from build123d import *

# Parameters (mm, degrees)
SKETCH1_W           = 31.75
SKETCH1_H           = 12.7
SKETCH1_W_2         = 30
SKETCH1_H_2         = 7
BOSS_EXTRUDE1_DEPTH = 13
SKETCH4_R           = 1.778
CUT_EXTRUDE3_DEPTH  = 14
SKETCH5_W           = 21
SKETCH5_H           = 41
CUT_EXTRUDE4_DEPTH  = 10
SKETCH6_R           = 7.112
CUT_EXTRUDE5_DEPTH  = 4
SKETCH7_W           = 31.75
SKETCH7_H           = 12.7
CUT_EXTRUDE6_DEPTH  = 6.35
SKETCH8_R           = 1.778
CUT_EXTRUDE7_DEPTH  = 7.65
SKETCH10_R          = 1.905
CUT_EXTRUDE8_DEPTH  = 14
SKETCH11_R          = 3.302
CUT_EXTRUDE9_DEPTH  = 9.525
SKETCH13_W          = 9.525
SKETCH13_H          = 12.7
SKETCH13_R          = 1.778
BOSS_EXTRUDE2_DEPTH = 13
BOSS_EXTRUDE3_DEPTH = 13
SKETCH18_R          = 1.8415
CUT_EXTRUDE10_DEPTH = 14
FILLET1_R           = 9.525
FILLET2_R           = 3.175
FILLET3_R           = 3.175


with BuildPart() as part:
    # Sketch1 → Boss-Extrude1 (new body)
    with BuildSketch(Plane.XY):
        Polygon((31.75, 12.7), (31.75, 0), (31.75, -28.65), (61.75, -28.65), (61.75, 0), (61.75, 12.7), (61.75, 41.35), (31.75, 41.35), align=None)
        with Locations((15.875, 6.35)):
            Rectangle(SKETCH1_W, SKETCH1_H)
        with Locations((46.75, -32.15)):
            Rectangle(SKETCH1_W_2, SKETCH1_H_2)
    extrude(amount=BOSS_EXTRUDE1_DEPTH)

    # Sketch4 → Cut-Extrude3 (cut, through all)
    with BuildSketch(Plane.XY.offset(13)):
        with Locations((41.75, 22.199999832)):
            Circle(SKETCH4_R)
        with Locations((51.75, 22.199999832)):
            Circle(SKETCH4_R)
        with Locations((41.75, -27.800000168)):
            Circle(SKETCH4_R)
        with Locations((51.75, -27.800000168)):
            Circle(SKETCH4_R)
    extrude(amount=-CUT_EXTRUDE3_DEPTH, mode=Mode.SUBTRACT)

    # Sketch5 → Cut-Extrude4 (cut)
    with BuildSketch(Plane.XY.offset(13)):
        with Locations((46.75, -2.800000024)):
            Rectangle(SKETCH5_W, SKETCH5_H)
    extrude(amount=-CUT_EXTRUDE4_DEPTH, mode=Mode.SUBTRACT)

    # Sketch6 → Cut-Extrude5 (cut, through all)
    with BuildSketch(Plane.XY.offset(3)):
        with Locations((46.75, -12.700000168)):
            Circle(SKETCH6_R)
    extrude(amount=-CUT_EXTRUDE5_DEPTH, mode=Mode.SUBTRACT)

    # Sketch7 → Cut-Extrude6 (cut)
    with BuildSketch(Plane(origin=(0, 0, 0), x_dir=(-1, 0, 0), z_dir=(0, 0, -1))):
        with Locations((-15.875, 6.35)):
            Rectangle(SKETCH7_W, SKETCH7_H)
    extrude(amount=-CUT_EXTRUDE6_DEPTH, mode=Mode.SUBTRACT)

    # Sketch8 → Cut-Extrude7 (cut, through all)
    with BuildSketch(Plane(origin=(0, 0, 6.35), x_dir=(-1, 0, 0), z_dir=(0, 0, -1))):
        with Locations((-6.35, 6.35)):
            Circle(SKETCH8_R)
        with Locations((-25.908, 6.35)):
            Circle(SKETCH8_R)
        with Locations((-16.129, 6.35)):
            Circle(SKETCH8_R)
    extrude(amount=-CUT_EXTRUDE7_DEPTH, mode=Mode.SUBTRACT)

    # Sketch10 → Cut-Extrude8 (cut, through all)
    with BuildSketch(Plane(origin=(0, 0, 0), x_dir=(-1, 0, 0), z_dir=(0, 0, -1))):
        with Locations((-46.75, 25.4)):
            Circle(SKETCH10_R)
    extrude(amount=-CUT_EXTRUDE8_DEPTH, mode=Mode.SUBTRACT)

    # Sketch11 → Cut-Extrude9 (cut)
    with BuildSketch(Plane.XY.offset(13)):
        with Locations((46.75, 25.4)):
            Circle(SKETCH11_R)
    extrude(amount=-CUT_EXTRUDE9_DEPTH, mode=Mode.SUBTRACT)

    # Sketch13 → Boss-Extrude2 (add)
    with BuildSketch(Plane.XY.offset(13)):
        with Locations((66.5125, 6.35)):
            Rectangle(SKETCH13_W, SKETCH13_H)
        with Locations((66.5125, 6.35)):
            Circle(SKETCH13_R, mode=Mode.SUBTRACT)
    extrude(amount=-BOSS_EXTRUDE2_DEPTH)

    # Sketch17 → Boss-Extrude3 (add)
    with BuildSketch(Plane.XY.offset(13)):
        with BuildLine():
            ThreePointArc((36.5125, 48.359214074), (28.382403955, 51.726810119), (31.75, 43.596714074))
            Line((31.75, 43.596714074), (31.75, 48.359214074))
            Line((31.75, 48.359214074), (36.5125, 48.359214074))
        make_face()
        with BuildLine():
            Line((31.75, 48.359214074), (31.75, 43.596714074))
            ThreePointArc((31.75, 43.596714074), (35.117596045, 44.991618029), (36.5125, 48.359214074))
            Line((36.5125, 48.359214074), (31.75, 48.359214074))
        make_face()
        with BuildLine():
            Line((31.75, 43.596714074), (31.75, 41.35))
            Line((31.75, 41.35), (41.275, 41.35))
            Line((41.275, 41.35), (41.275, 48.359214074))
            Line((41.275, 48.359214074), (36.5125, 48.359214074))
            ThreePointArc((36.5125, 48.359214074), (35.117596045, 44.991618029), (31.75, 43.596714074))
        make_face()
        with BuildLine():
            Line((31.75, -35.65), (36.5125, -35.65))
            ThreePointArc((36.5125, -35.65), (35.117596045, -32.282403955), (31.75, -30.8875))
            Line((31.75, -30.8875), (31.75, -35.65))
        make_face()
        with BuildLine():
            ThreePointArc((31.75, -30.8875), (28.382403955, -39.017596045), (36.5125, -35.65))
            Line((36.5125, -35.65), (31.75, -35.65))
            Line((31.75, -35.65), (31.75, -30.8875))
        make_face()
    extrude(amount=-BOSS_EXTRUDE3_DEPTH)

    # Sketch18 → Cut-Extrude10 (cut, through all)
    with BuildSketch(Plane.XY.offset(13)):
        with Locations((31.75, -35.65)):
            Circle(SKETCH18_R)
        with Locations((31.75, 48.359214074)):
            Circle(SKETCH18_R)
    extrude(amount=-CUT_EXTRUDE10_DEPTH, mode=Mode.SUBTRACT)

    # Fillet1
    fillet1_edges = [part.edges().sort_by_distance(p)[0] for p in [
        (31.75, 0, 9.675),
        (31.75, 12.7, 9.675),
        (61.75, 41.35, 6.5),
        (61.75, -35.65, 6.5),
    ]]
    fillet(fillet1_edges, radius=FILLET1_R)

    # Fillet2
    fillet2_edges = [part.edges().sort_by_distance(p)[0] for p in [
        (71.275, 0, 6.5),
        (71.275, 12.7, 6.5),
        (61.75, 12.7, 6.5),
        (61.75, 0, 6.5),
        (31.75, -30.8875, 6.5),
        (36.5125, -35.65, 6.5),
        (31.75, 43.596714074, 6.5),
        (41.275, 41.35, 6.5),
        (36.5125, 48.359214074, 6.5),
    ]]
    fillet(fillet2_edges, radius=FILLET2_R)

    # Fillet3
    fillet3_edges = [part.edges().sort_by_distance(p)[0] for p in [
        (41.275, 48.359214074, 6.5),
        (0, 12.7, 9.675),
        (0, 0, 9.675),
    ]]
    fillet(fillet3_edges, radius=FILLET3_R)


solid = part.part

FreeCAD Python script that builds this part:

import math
import FreeCAD as App
import Part
import Sketcher
from FreeCAD import Vector
Q = App.Units.Quantity


def edges_at(feature, points):
    """Names of the edges that pass closest to the given points."""
    edges = feature.Shape.Edges
    near = lambda p: min(range(len(edges)), key=lambda i: edges[i].distToShape(Part.Vertex(*p))[0])
    return sorted({f"Edge{near(p) + 1}" for p in points})

doc = App.newDocument("Part")
body = doc.addObject("PartDesign::Body", "Body")

# Sketch on XY plane
sketch1 = body.newObject("Sketcher::SketchObject", "Sketch")
sketch1.AttachmentSupport = (doc.getObject("XY_Plane"), [""])
sketch1.MapMode = "FlatFace"
sketch1.addGeometry(Part.LineSegment(Vector(62, 41, 0), Vector(32, 41, 0)), False)
sketch1.addGeometry(Part.LineSegment(Vector(32, 41, 0), Vector(32, 13, 0)), False)
sketch1.addGeometry(Part.LineSegment(Vector(32, 13, 0), Vector(0, 13, 0)), False)
sketch1.addGeometry(Part.LineSegment(Vector(0, 13, 0), Vector(0, 0, 0)), False)
sketch1.addGeometry(Part.LineSegment(Vector(0, 0, 0), Vector(32, 0, 0)), False)
sketch1.addGeometry(Part.LineSegment(Vector(32, 0, 0), Vector(32, -36, 0)), False)
sketch1.addGeometry(Part.LineSegment(Vector(32, -36, 0), Vector(62, -36, 0)), False)
sketch1.addGeometry(Part.LineSegment(Vector(62, -36, 0), Vector(62, 41, 0)), False)
sketch1.addConstraint(Sketcher.Constraint("Coincident", 0, 2, 1, 1))
sketch1.addConstraint(Sketcher.Constraint("Coincident", 1, 2, 2, 1))
sketch1.addConstraint(Sketcher.Constraint("Coincident", 2, 2, 3, 1))
sketch1.addConstraint(Sketcher.Constraint("Coincident", 3, 2, 4, 1))
sketch1.addConstraint(Sketcher.Constraint("Coincident", 4, 2, 5, 1))
sketch1.addConstraint(Sketcher.Constraint("Coincident", 5, 2, 6, 1))
sketch1.addConstraint(Sketcher.Constraint("Coincident", 6, 2, 7, 1))
sketch1.addConstraint(Sketcher.Constraint("Coincident", 7, 2, 0, 1))
sketch1.addConstraint(Sketcher.Constraint("Horizontal", 0))
sketch1.addConstraint(Sketcher.Constraint("Vertical", 1))
sketch1.addConstraint(Sketcher.Constraint("Horizontal", 2))
sketch1.addConstraint(Sketcher.Constraint("Vertical", 3))
sketch1.addConstraint(Sketcher.Constraint("Horizontal", 4))
sketch1.addConstraint(Sketcher.Constraint("Vertical", 5))
sketch1.addConstraint(Sketcher.Constraint("Horizontal", 6))
sketch1.addConstraint(Sketcher.Constraint("Vertical", 7))
sketch1.addConstraint(Sketcher.Constraint("Coincident", 3, 2, -1, 1))
sketch1.addConstraint(Sketcher.Constraint("Vertical", 1, 2, 4, 2))
sketch1.addConstraint(Sketcher.Constraint("DistanceY", 3, 2, 3, 1, Q("0.5 in")))
sketch1.addConstraint(Sketcher.Constraint("DistanceX", 2, 2, 2, 1, Q("1.25 in")))
sketch1.addConstraint(Sketcher.Constraint("DistanceX", 0, 2, 0, 1, 30.0))
sketch1.addConstraint(Sketcher.Constraint("DistanceY", 1, 2, 1, 1, 28.65))
sketch1.addConstraint(Sketcher.Constraint("DistanceY", 5, 2, 5, 1, 35.65))
pad1 = body.newObject("PartDesign::Pad", "Pad")
pad1.Profile = sketch1
pad1.Length = 13

# Sketch on XY plane
sketch2 = body.newObject("Sketcher::SketchObject", "Sketch001")
sketch2.AttachmentSupport = (doc.getObject("XY_Plane"), [""])
sketch2.MapMode = "FlatFace"
sketch2.AttachmentOffset = App.Placement(Vector(0, 0, 13), App.Rotation())
sketch2.addGeometry(Part.Circle(Vector(41.8, 22.2, 0), Vector(0, 0, 1), 1.8), False)
sketch2.addGeometry(Part.Circle(Vector(51.8, 22.2, 0), Vector(0, 0, 1), 1.8), False)
sketch2.addGeometry(Part.Circle(Vector(41.8, -27.8, 0), Vector(0, 0, 1), 1.8), False)
sketch2.addGeometry(Part.Circle(Vector(51.8, -27.8, 0), Vector(0, 0, 1), 1.8), False)
sketch2.addConstraint(Sketcher.Constraint("Equal", 0, 1))
sketch2.addConstraint(Sketcher.Constraint("Equal", 1, 2))
sketch2.addConstraint(Sketcher.Constraint("Equal", 2, 3))
sketch2.addConstraint(Sketcher.Constraint("Horizontal", 0, 3, 1, 3))
sketch2.addConstraint(Sketcher.Constraint("Horizontal", 2, 3, 3, 3))
sketch2.addConstraint(Sketcher.Constraint("Vertical", 0, 3, 2, 3))
sketch2.addConstraint(Sketcher.Constraint("Vertical", 1, 3, 3, 3))
sketch2.addConstraint(Sketcher.Constraint("Diameter", 0, Q("0.14 in")))
sketch2.addConstraint(Sketcher.Constraint("DistanceX", -1, 1, 0, 3, 41.75))
sketch2.addConstraint(Sketcher.Constraint("DistanceY", -1, 1, 0, 3, 22.2))
sketch2.addConstraint(Sketcher.Constraint("DistanceX", -1, 1, 1, 3, 51.75))
sketch2.addConstraint(Sketcher.Constraint("DistanceY", 2, 3, -1, 1, 27.8))
pocket1 = body.newObject("PartDesign::Pocket", "Pocket")
pocket1.Profile = sketch2
pocket1.Type = "ThroughAll"

# Sketch on XY plane
sketch3 = body.newObject("Sketcher::SketchObject", "Sketch002")
sketch3.AttachmentSupport = (doc.getObject("XY_Plane"), [""])
sketch3.MapMode = "FlatFace"
sketch3.AttachmentOffset = App.Placement(Vector(0, 0, 13), App.Rotation())
sketch3.addGeometry(Part.LineSegment(Vector(36, 18, 0), Vector(36, -23, 0)), False)
sketch3.addGeometry(Part.LineSegment(Vector(36, -23, 0), Vector(57, -23, 0)), False)
sketch3.addGeometry(Part.LineSegment(Vector(57, -23, 0), Vector(57, 18, 0)), False)
sketch3.addGeometry(Part.LineSegment(Vector(57, 18, 0), Vector(36, 18, 0)), False)
sketch3.addConstraint(Sketcher.Constraint("Coincident", 0, 2, 1, 1))
sketch3.addConstraint(Sketcher.Constraint("Coincident", 1, 2, 2, 1))
sketch3.addConstraint(Sketcher.Constraint("Coincident", 2, 2, 3, 1))
sketch3.addConstraint(Sketcher.Constraint("Coincident", 3, 2, 0, 1))
sketch3.addConstraint(Sketcher.Constraint("Vertical", 0))
sketch3.addConstraint(Sketcher.Constraint("Horizontal", 1))
sketch3.addConstraint(Sketcher.Constraint("Vertical", 2))
sketch3.addConstraint(Sketcher.Constraint("Horizontal", 3))
sketch3.addConstraint(Sketcher.Constraint("DistanceX", 1, 1, 1, 2, 21.0))
sketch3.addConstraint(Sketcher.Constraint("DistanceY", 0, 2, 0, 1, 41.0))
sketch3.addConstraint(Sketcher.Constraint("DistanceX", -1, 1, 0, 2, 36.25))
sketch3.addConstraint(Sketcher.Constraint("DistanceY", 0, 2, -1, 1, 23.3))
pocket2 = body.newObject("PartDesign::Pocket", "Pocket001")
pocket2.Profile = sketch3
pocket2.Length = 10

# Sketch on XY plane
sketch4 = body.newObject("Sketcher::SketchObject", "Sketch003")
sketch4.AttachmentSupport = (doc.getObject("XY_Plane"), [""])
sketch4.MapMode = "FlatFace"
sketch4.AttachmentOffset = App.Placement(Vector(0, 0, 3), App.Rotation())
sketch4.addGeometry(Part.Circle(Vector(47, -13, 0), Vector(0, 0, 1), 7), False)
sketch4.addConstraint(Sketcher.Constraint("Diameter", 0, Q("0.56 in")))
sketch4.addConstraint(Sketcher.Constraint("DistanceY", 0, 3, -1, 1, Q("0.5 in")))
sketch4.addConstraint(Sketcher.Constraint("DistanceX", -1, 1, 0, 3, 46.75))
pocket3 = body.newObject("PartDesign::Pocket", "Pocket002")
pocket3.Profile = sketch4
pocket3.Type = "ThroughAll"

# Sketch on XY plane
sketch5 = body.newObject("Sketcher::SketchObject", "Sketch004")
sketch5.AttachmentSupport = (doc.getObject("XY_Plane"), [""])
sketch5.MapMode = "FlatFace"
sketch5.addGeometry(Part.LineSegment(Vector(32, 13, 0), Vector(32, 0, 0)), False)
sketch5.addGeometry(Part.LineSegment(Vector(32, 0, 0), Vector(0, 0, 0)), False)
sketch5.addGeometry(Part.LineSegment(Vector(0, 0, 0), Vector(0, 13, 0)), False)
sketch5.addGeometry(Part.LineSegment(Vector(0, 13, 0), Vector(32, 13, 0)), False)
sketch5.addConstraint(Sketcher.Constraint("Coincident", 0, 2, 1, 1))
sketch5.addConstraint(Sketcher.Constraint("Coincident", 1, 2, 2, 1))
sketch5.addConstraint(Sketcher.Constraint("Coincident", 2, 2, 3, 1))
sketch5.addConstraint(Sketcher.Constraint("Coincident", 3, 2, 0, 1))
sketch5.addConstraint(Sketcher.Constraint("Vertical", 0))
sketch5.addConstraint(Sketcher.Constraint("Horizontal", 1))
sketch5.addConstraint(Sketcher.Constraint("Vertical", 2))
sketch5.addConstraint(Sketcher.Constraint("Horizontal", 3))
sketch5.addConstraint(Sketcher.Constraint("Coincident", 1, 2, -1, 1))
sketch5.addConstraint(Sketcher.Constraint("DistanceY", 0, 2, 0, 1, Q("0.5 in")))
sketch5.addConstraint(Sketcher.Constraint("DistanceX", 1, 2, 1, 1, Q("1.25 in")))
pocket4 = body.newObject("PartDesign::Pocket", "Pocket003")
pocket4.Profile = sketch5
pocket4.Length = Q("0.25 in")
pocket4.Reversed = True

# Sketch on XY plane
sketch6 = body.newObject("Sketcher::SketchObject", "Sketch005")
sketch6.AttachmentSupport = (doc.getObject("XY_Plane"), [""])
sketch6.MapMode = "FlatFace"
sketch6.AttachmentOffset = App.Placement(Vector(0, 0, 0.25 * 25.4), App.Rotation())
sketch6.addGeometry(Part.Circle(Vector(6.3, 6.3, 0), Vector(0, 0, 1), 1.8), False)
sketch6.addGeometry(Part.Circle(Vector(25.9, 6.3, 0), Vector(0, 0, 1), 1.8), False)
sketch6.addGeometry(Part.Circle(Vector(16.1, 6.3, 0), Vector(0, 0, 1), 1.8), False)
sketch6.addConstraint(Sketcher.Constraint("Equal", 0, 1))
sketch6.addConstraint(Sketcher.Constraint("Equal", 1, 2))
sketch6.addConstraint(Sketcher.Constraint("Horizontal", 0, 3, 1, 3))
sketch6.addConstraint(Sketcher.Constraint("Horizontal", 1, 3, 2, 3))
sketch6.addConstraint(Sketcher.Constraint("Diameter", 0, Q("0.14 in")))
sketch6.addConstraint(Sketcher.Constraint("DistanceX", -1, 1, 0, 3, Q("0.25 in")))
sketch6.addConstraint(Sketcher.Constraint("DistanceY", -1, 1, 0, 3, Q("0.25 in")))
sketch6.addConstraint(Sketcher.Constraint("DistanceX", -1, 1, 1, 3, Q("1.02 in")))
sketch6.addConstraint(Sketcher.Constraint("DistanceX", -1, 1, 2, 3, Q("0.635 in")))
pocket5 = body.newObject("PartDesign::Pocket", "Pocket004")
pocket5.Profile = sketch6
pocket5.Type = "ThroughAll"
pocket5.Reversed = True

# Sketch on XY plane
sketch7 = body.newObject("Sketcher::SketchObject", "Sketch006")
sketch7.AttachmentSupport = (doc.getObject("XY_Plane"), [""])
sketch7.MapMode = "FlatFace"
sketch7.addGeometry(Part.Circle(Vector(46.8, 25.4, 0), Vector(0, 0, 1), 1.9), False)
sketch7.addConstraint(Sketcher.Constraint("Diameter", 0, Q("0.15 in")))
sketch7.addConstraint(Sketcher.Constraint("DistanceY", -1, 1, 0, 3, Q("1 in")))
sketch7.addConstraint(Sketcher.Constraint("DistanceX", -1, 1, 0, 3, 46.75))
pocket6 = body.newObject("PartDesign::Pocket", "Pocket005")
pocket6.Profile = sketch7
pocket6.Type = "ThroughAll"
pocket6.Reversed = True

# Sketch on XY plane
sketch8 = body.newObject("Sketcher::SketchObject", "Sketch007")
sketch8.AttachmentSupport = (doc.getObject("XY_Plane"), [""])
sketch8.MapMode = "FlatFace"
sketch8.AttachmentOffset = App.Placement(Vector(0, 0, 13), App.Rotation())
sketch8.addGeometry(Part.Circle(Vector(46.8, 25.4, 0), Vector(0, 0, 1), 3.3), False)
sketch8.addConstraint(Sketcher.Constraint("Diameter", 0, Q("0.26 in")))
sketch8.addConstraint(Sketcher.Constraint("DistanceY", -1, 1, 0, 3, Q("1 in")))
sketch8.addConstraint(Sketcher.Constraint("DistanceX", -1, 1, 0, 3, 46.75))
pocket7 = body.newObject("PartDesign::Pocket", "Pocket006")
pocket7.Profile = sketch8
pocket7.Length = Q("0.375 in")

# Sketch on XY plane
sketch9 = body.newObject("Sketcher::SketchObject", "Sketch008")
sketch9.AttachmentSupport = (doc.getObject("XY_Plane"), [""])
sketch9.MapMode = "FlatFace"
sketch9.AttachmentOffset = App.Placement(Vector(0, 0, 13), App.Rotation())
sketch9.addGeometry(Part.LineSegment(Vector(61.8, 12.7, 0), Vector(61.8, 0, 0)), False)
sketch9.addGeometry(Part.LineSegment(Vector(61.8, 0, 0), Vector(71.3, 0, 0)), False)
sketch9.addGeometry(Part.LineSegment(Vector(71.3, 0, 0), Vector(71.3, 12.7, 0)), False)
sketch9.addGeometry(Part.LineSegment(Vector(71.3, 12.7, 0), Vector(61.8, 12.7, 0)), False)
sketch9.addGeometry(Part.Circle(Vector(66.5, 6.3, 0), Vector(0, 0, 1), 1.8), False)
sketch9.addConstraint(Sketcher.Constraint("Coincident", 0, 2, 1, 1))
sketch9.addConstraint(Sketcher.Constraint("Coincident", 1, 2, 2, 1))
sketch9.addConstraint(Sketcher.Constraint("Coincident", 2, 2, 3, 1))
sketch9.addConstraint(Sketcher.Constraint("Coincident", 3, 2, 0, 1))
sketch9.addConstraint(Sketcher.Constraint("Vertical", 0))
sketch9.addConstraint(Sketcher.Constraint("Horizontal", 1))
sketch9.addConstraint(Sketcher.Constraint("Vertical", 2))
sketch9.addConstraint(Sketcher.Constraint("Horizontal", 3))
sketch9.addConstraint(Sketcher.Constraint("PointOnObject", 0, 2, -1))
sketch9.addConstraint(Sketcher.Constraint("Diameter", 4, Q("0.14 in")))
sketch9.addConstraint(Sketcher.Constraint("DistanceY", 0, 2, 0, 1, Q("0.5 in")))
sketch9.addConstraint(Sketcher.Constraint("DistanceX", 1, 1, 1, 2, Q("0.375 in")))
sketch9.addConstraint(Sketcher.Constraint("DistanceY", -1, 1, 4, 3, Q("0.25 in")))
sketch9.addConstraint(Sketcher.Constraint("DistanceX", 0, 2, 4, 3, Q("0.1875 in")))
sketch9.addConstraint(Sketcher.Constraint("DistanceX", -1, 1, 4, 3, 66.5125))
pad2 = body.newObject("PartDesign::Pad", "Pad001")
pad2.Profile = sketch9
pad2.Length = 13
pad2.Reversed = True

# Sketch on XY plane
sketch10 = body.newObject("Sketcher::SketchObject", "Sketch009")
sketch10.AttachmentSupport = (doc.getObject("XY_Plane"), [""])
sketch10.MapMode = "FlatFace"
sketch10.AttachmentOffset = App.Placement(Vector(0, 0, 13), App.Rotation())
sketch10.addGeometry(Part.ArcOfCircle(Part.Circle(Vector(31.8, 48.4, 0), Vector(0, 0, 1), 4.8), math.radians(0), math.radians(270)), False)
sketch10.addGeometry(Part.LineSegment(Vector(31.8, 43.6, 0), Vector(31.8, 41.4, 0)), False)
sketch10.addGeometry(Part.LineSegment(Vector(31.8, 41.4, 0), Vector(41.3, 41.4, 0)), False)
sketch10.addGeometry(Part.LineSegment(Vector(41.3, 41.4, 0), Vector(41.3, 48.4, 0)), False)
sketch10.addGeometry(Part.LineSegment(Vector(41.3, 48.4, 0), Vector(36.5, 48.4, 0)), False)
sketch10.addGeometry(Part.ArcOfCircle(Part.Circle(Vector(31.7, -35.7, 0), Vector(0, 0, 1), 4.8), math.radians(0), math.radians(90)), False)
sketch10.addGeometry(Part.ArcOfCircle(Part.Circle(Vector(31.8, -35.6, 0), Vector(0, 0, 1), 4.8), math.radians(90), math.radians(360)), False)
sketch10.addConstraint(Sketcher.Constraint("Coincident", 0, 2, 1, 1))
sketch10.addConstraint(Sketcher.Constraint("Coincident", 1, 2, 2, 1))
sketch10.addConstraint(Sketcher.Constraint("Coincident", 2, 2, 3, 1))
sketch10.addConstraint(Sketcher.Constraint("Coincident", 3, 2, 4, 1))
sketch10.addConstraint(Sketcher.Constraint("Coincident", 4, 2, 0, 1))
sketch10.addConstraint(Sketcher.Constraint("Tangent", 5, 1, 6, 2))
sketch10.addConstraint(Sketcher.Constraint("Coincident", 6, 1, 5, 2))
sketch10.addConstraint(Sketcher.Constraint("Vertical", 1))
sketch10.addConstraint(Sketcher.Constraint("Horizontal", 2))
sketch10.addConstraint(Sketcher.Constraint("Vertical", 3))
sketch10.addConstraint(Sketcher.Constraint("Horizontal", 4))
sketch10.addConstraint(Sketcher.Constraint("Equal", 0, 5))
sketch10.addConstraint(Sketcher.Constraint("Horizontal", 0, 3, 3, 2))
sketch10.addConstraint(Sketcher.Constraint("Horizontal", 6, 3, 5, 1))
sketch10.addConstraint(Sketcher.Constraint("Vertical", 0, 3, 5, 3))
sketch10.addConstraint(Sketcher.Constraint("Vertical", 6, 3, 0, 2))
sketch10.addConstraint(Sketcher.Constraint("Vertical", 1, 2, 6, 1))
sketch10.addConstraint(Sketcher.Constraint("Radius", 0, Q("0.1875 in")))
sketch10.addConstraint(Sketcher.Constraint("DistanceX", 2, 1, 2, 2, Q("0.375 in")))
sketch10.addConstraint(Sketcher.Constraint("DistanceX", -1, 1, 0, 3, Q("1.25 in")))
sketch10.addConstraint(Sketcher.Constraint("DistanceY", 5, 3, -1, 1, 35.65))
sketch10.addConstraint(Sketcher.Constraint("DistanceY", -1, 1, 1, 2, 41.35))
sketch10.addConstraint(Sketcher.Constraint("DistanceY", 1, 2, 1, 1, 2.246714))
pad3 = body.newObject("PartDesign::Pad", "Pad002")
pad3.Profile = sketch10
pad3.Length = 13
pad3.Reversed = True

# Sketch on XY plane
sketch11 = body.newObject("Sketcher::SketchObject", "Sketch010")
sketch11.AttachmentSupport = (doc.getObject("XY_Plane"), [""])
sketch11.MapMode = "FlatFace"
sketch11.AttachmentOffset = App.Placement(Vector(0, 0, 13), App.Rotation())
sketch11.addGeometry(Part.Circle(Vector(31.8, -35.6, 0), Vector(0, 0, 1), 1.8), False)
sketch11.addGeometry(Part.Circle(Vector(31.8, 48.4, 0), Vector(0, 0, 1), 1.8), False)
sketch11.addConstraint(Sketcher.Constraint("Equal", 0, 1))
sketch11.addConstraint(Sketcher.Constraint("Vertical", 0, 3, 1, 3))
sketch11.addConstraint(Sketcher.Constraint("Diameter", 0, Q("0.145 in")))
sketch11.addConstraint(Sketcher.Constraint("DistanceX", -1, 1, 0, 3, Q("1.25 in")))
sketch11.addConstraint(Sketcher.Constraint("DistanceY", 0, 3, -1, 1, 35.65))
sketch11.addConstraint(Sketcher.Constraint("DistanceY", -1, 1, 1, 3, 48.359214))
pocket8 = body.newObject("PartDesign::Pocket", "Pocket007")
pocket8.Profile = sketch11
pocket8.Type = "ThroughAll"
doc.recompute()

fillet = body.newObject("PartDesign::Fillet", "Fillet")
fillet.Base = (pocket8, edges_at(pocket8, [
    (31.75, 0, 9.675),
    (31.75, 12.7, 9.675),
    (61.75, 41.35, 6.5),
    (61.75, -35.65, 6.5),
]))
fillet.Radius = Q("0.375 in")
doc.recompute()

fillet2 = body.newObject("PartDesign::Fillet", "Fillet001")
fillet2.Base = (fillet, edges_at(fillet, [
    (71.275, 0, 6.5),
    (71.275, 12.7, 6.5),
    (61.75, 12.7, 6.5),
    (61.75, 0, 6.5),
    (31.75, -30.887, 6.5),
    (36.513, -35.65, 6.5),
    (31.75, 43.597, 6.5),
    (41.275, 41.35, 6.5),
    (36.513, 48.359, 6.5),
]))
fillet2.Radius = Q("0.125 in")
doc.recompute()

fillet3 = body.newObject("PartDesign::Fillet", "Fillet002")
fillet3.Base = (fillet2, edges_at(fillet2, [(41.275, 48.359, 6.5), (0, 12.7, 9.675), (0, 0, 9.675)]))
fillet3.Radius = Q("0.125 in")

doc.recompute()
